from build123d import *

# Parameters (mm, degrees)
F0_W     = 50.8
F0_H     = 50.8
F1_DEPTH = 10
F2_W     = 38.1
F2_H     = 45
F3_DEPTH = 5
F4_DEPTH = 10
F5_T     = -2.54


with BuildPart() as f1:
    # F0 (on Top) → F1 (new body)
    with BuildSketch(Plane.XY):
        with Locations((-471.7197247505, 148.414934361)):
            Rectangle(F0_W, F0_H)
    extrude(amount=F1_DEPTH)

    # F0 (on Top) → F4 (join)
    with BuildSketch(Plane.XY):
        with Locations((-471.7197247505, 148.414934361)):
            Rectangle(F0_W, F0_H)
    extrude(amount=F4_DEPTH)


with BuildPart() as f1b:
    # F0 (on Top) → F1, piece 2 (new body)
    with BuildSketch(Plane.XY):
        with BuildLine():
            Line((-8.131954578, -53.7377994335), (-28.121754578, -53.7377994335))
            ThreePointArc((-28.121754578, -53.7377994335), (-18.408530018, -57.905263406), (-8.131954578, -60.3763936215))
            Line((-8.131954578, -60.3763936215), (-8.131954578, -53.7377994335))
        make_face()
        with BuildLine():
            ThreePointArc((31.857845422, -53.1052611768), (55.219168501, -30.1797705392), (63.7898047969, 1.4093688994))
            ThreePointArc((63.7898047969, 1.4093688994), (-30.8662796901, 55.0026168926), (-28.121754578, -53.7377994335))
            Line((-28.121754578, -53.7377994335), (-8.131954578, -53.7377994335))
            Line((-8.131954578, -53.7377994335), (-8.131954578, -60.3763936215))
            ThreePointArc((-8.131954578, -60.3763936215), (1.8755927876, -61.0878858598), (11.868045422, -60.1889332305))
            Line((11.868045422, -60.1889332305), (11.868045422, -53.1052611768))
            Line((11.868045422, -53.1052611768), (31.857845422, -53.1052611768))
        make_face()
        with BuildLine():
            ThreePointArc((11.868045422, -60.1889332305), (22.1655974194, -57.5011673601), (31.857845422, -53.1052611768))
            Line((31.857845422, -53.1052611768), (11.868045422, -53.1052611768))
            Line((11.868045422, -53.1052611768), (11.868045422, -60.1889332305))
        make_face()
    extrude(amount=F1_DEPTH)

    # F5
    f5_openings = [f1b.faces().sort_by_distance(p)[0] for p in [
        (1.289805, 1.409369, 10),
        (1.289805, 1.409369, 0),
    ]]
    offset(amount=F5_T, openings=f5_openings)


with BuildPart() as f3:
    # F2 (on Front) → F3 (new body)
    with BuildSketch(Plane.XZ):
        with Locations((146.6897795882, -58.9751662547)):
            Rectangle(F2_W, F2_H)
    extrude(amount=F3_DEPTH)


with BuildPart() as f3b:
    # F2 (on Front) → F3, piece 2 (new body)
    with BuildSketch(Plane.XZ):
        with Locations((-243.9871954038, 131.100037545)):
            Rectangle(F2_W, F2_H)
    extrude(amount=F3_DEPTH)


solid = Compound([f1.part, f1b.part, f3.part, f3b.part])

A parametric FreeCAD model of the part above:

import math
import FreeCAD as App
import Part
import Sketcher

V = App.Vector
Q = App.Units.Quantity


def faces_at(feature, points):
    """Names of the faces that lie closest to the given points."""
    faces = feature.Shape.Faces
    near = lambda p: min(range(len(faces)), key=lambda i: faces[i].distToShape(Part.Vertex(*p))[0])
    return sorted({f"Face{near(p) + 1}" for p in points})


def add_polygon(sketch, points):
    """Adds a closed chain of lines whose ends are joined by coincident constraints."""
    first, n = sketch.GeometryCount, len(points)
    for a, b in zip(points, points[1:] + points[:1]):
        sketch.addGeometry(Part.LineSegment(App.Vector(*a, 0), App.Vector(*b, 0)), False)
    for i in range(n):
        sketch.addConstraint(Sketcher.Constraint("Coincident", first + i, 2, first + (i + 1) % n, 1))

doc = App.newDocument("Part")
body = doc.addObject("PartDesign::Body", "Body")

sketch1 = body.newObject("Sketcher::SketchObject", "Sketch")
sketch1.AttachmentSupport = (doc.getObject("XY_Plane"), [""])
sketch1.MapMode = "FlatFace"
add_polygon(sketch1, [(-497, 174), (-497, 123), (-446, 123), (-446, 174)])
sketch1.addConstraint([
    Sketcher.Constraint("Vertical", 0),
    Sketcher.Constraint("Horizontal", 1),
    Sketcher.Constraint("Vertical", 2),
    Sketcher.Constraint("Horizontal", 3),
    Sketcher.Constraint("Equal", 3, 0),
    Sketcher.Constraint("DistanceX", 1, 1, 1, 2, Q("50.8 mm")),
    Sketcher.Constraint("DistanceX", 0, 2, -1, 1, Q("497.119725 mm")),
    Sketcher.Constraint("DistanceY", -1, 1, 0, 2, Q("123.014934 mm")),
])
pad1 = body.newObject("PartDesign::Pad", "Pad")
pad1.Profile = sketch1
pad1.Length = 10

sketch2 = body.newObject("Sketcher::SketchObject", "Sketch001")
sketch2.AttachmentSupport = (doc.getObject("XY_Plane"), [""])
sketch2.MapMode = "FlatFace"
add_polygon(sketch2, [(-497, 174), (-497, 123), (-446, 123), (-446, 174)])
sketch2.addConstraint([
    Sketcher.Constraint("Vertical", 0),
    Sketcher.Constraint("Horizontal", 1),
    Sketcher.Constraint("Vertical", 2),
    Sketcher.Constraint("Horizontal", 3),
    Sketcher.Constraint("Equal", 3, 0),
    Sketcher.Constraint("DistanceX", 1, 1, 1, 2, Q("50.8 mm")),
    Sketcher.Constraint("DistanceX", 0, 2, -1, 1, Q("497.119725 mm")),
    Sketcher.Constraint("DistanceY", -1, 1, 0, 2, Q("123.014934 mm")),
])
pad2 = body.newObject("PartDesign::Pad", "Pad001")
pad2.Profile = sketch2
pad2.Length = 10
body2 = doc.addObject("PartDesign::Body", "Body001")

sketch3 = body2.newObject("Sketcher::SketchObject", "Sketch002")
sketch3.AttachmentSupport = (doc.getObject("XY_Plane001"), [""])
sketch3.MapMode = "FlatFace"
sketch3.addGeometry([
    Part.ArcOfCircle(Part.Circle(V(1, 1, 0), V(0, 0, 1), 62), math.radians(-118.07), math.radians(-98.67)),
    Part.ArcOfCircle(Part.Circle(V(1, 1, 0), V(0, 0, 1), 63), math.radians(-98.67), math.radians(-80.26)),
    Part.ArcOfCircle(Part.Circle(V(1, 1, 0), V(0, 0, 1), 63), math.radians(-80.26), math.radians(-60.72)),
    Part.ArcOfCircle(Part.Circle(V(1, 1, 0), V(0, 0, 1), 62), math.radians(-61), math.radians(242)),
], False)
sketch3.addConstraint([
    Sketcher.Constraint("Tangent", 0, 2, 1, 1),
    Sketcher.Constraint("Tangent", 1, 2, 2, 1),
    Sketcher.Constraint("Tangent", 2, 2, 3, 1),
    Sketcher.Constraint("Tangent", 3, 2, 0, 1),
    Sketcher.Constraint("Equal", 0, 1),
    Sketcher.Constraint("Radius", 0, Q("62.5 mm")),
    Sketcher.Constraint("DistanceX", 0, 2, 1, 2, Q("20 mm")),
    Sketcher.Constraint("DistanceY", 3, 2, -1, 1, Q("53.737799 mm")),
    Sketcher.Constraint("DistanceX", 1, 2, 2, 2, Q("19.9898 mm")),
    Sketcher.Constraint("DistanceX", 3, 2, 0, 2, Q("19.9898 mm")),
    Sketcher.Constraint("DistanceY", -1, 1, 0, 3, Q("1.409369 mm")),
    Sketcher.Constraint("DistanceX", -1, 1, 0, 3, Q("1.289805 mm")),
])
pad3 = body2.newObject("PartDesign::Pad", "Pad002")
pad3.Profile = sketch3
pad3.Length = 10
doc.recompute()

thickness = body2.newObject("PartDesign::Thickness", "Thickness")
thickness.Base = (pad3, faces_at(pad3, [(1.29, 1.409, 10), (1.29, 1.409, 0)]))
thickness.Value = 2.54
thickness.Reversed = True
thickness.Join = "Arc"
body3 = doc.addObject("PartDesign::Body", "Body002")

sketch4 = body3.newObject("Sketcher::SketchObject", "Sketch003")
sketch4.AttachmentSupport = (doc.getObject("XZ_Plane002"), [""])
sketch4.MapMode = "FlatFace"
add_polygon(sketch4, [(128, -36), (128, -81), (166, -81), (166, -36)])
sketch4.addConstraint([
    Sketcher.Constraint("Vertical", 0),
    Sketcher.Constraint("Horizontal", 1),
    Sketcher.Constraint("Vertical", 2),
    Sketcher.Constraint("Horizontal", 3),
    Sketcher.Constraint("DistanceY", 0, 2, 0, 1, Q("45 mm")),
    Sketcher.Constraint("DistanceX", 1, 1, 1, 2, Q("38.1 mm")),
    Sketcher.Constraint("DistanceX", -1, 1, 0, 2, Q("127.63978 mm")),
    Sketcher.Constraint("DistanceY", 0, 2, -1, 1, Q("81.475166 mm")),
])
pad4 = body3.newObject("PartDesign::Pad", "Pad003")
pad4.Profile = sketch4
pad4.Length = 5
body4 = doc.addObject("PartDesign::Body", "Body003")

sketch5 = body4.newObject("Sketcher::SketchObject", "Sketch004")
sketch5.AttachmentSupport = (doc.getObject("XZ_Plane003"), [""])
sketch5.MapMode = "FlatFace"
add_polygon(sketch5, [(-263, 154), (-263, 109), (-225, 109), (-225, 154)])
sketch5.addConstraint([
    Sketcher.Constraint("Vertical", 0),
    Sketcher.Constraint("Horizontal", 1),
    Sketcher.Constraint("Vertical", 2),
    Sketcher.Constraint("Horizontal", 3),
    Sketcher.Constraint("DistanceY", 0, 2, 0, 1, Q("45 mm")),
    Sketcher.Constraint("DistanceX", 1, 1, 1, 2, Q("38.1 mm")),
    Sketcher.Constraint("DistanceX", 0, 2, -1, 1, Q("263.037195 mm")),
    Sketcher.Constraint("DistanceY", -1, 1, 0, 2, Q("108.600038 mm")),
])
pad5 = body4.newObject("PartDesign::Pad", "Pad004")
pad5.Profile = sketch5
pad5.Length = 5

doc.recompute()
